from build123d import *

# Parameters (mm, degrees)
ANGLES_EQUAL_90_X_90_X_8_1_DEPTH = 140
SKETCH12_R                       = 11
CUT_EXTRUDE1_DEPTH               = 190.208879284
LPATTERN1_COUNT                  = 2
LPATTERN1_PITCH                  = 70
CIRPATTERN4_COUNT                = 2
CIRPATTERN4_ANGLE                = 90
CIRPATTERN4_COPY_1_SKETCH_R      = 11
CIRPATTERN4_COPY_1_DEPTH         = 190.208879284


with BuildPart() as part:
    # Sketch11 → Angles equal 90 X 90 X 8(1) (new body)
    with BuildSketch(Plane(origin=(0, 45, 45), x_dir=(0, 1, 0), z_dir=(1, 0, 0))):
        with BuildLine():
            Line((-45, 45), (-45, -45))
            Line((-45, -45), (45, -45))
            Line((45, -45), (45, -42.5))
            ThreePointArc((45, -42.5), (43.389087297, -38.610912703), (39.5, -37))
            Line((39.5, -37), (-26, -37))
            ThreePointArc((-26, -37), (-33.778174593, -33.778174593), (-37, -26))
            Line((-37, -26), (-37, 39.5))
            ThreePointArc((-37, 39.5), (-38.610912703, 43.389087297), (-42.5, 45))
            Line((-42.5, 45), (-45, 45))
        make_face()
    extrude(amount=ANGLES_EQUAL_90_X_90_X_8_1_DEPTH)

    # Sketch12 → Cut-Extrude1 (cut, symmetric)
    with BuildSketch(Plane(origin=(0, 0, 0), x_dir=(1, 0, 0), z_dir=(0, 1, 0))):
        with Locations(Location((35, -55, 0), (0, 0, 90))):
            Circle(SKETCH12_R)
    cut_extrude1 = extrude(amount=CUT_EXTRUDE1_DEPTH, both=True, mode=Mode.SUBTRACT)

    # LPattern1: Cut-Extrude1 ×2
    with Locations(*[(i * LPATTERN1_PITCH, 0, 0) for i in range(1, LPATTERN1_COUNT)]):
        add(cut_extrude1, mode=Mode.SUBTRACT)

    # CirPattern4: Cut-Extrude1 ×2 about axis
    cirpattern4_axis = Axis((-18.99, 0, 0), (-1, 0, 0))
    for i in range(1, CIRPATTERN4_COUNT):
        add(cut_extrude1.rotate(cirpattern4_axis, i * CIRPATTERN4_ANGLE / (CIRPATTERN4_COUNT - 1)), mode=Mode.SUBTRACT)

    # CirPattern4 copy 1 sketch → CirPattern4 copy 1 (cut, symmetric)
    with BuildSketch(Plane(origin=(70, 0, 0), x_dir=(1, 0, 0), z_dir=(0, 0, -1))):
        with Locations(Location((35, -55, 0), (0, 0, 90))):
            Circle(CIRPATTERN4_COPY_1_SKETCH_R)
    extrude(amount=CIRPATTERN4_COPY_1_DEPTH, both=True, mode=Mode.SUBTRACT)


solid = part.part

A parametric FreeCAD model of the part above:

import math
import FreeCAD as App
import Part
import Sketcher

V = App.Vector

doc = App.newDocument("Part")
body = doc.addObject("PartDesign::Body", "Body")

# Sketch on YZ plane
sketch1 = doc.addObject("Sketcher::SketchObject", "Sketch")
body.addObject(sketch1)
sketch1.AttachmentSupport = (doc.YZ_Plane, [""])
sketch1.MapMode = "FlatFace"
sketch1.addGeometry(Part.LineSegment(V(0, 90, 0), V(0, 0, 0)), False)
sketch1.addGeometry(Part.LineSegment(V(0, 0, 0), V(90, 0, 0)), False)
sketch1.addGeometry(Part.LineSegment(V(90, 0, 0), V(90, 2.5, 0)), False)
sketch1.addGeometry(Part.ArcOfCircle(Part.Circle(V(84.5, 2.5, 0), V(0, 0, 1), 5.5), math.radians(0), math.radians(90)), False)
sketch1.addGeometry(Part.LineSegment(V(84.5, 8, 0), V(19, 8, 0)), False)
sketch1.addGeometry(Part.ArcOfCircle(Part.Circle(V(19, 19, 0), V(0, 0, 1), 11), math.radians(180), math.radians(270)), False)
sketch1.addGeometry(Part.LineSegment(V(8, 19, 0), V(8, 84.5, 0)), False)
sketch1.addGeometry(Part.ArcOfCircle(Part.Circle(V(2.5, 84.5, 0), V(0, 0, 1), 5.5), math.radians(0), math.radians(90)), False)
sketch1.addGeometry(Part.LineSegment(V(2.5, 90, 0), V(0, 90, 0)), False)
sketch1.addConstraint(Sketcher.Constraint("Coincident", 0, 2, 1, 1))
sketch1.addConstraint(Sketcher.Constraint("Coincident", 1, 2, 2, 1))
sketch1.addConstraint(Sketcher.Constraint("Tangent", 2, 2, 3, 1))
sketch1.addConstraint(Sketcher.Constraint("Tangent", 3, 2, 4, 1))
sketch1.addConstraint(Sketcher.Constraint("Tangent", 4, 2, 5, 2))
sketch1.addConstraint(Sketcher.Constraint("Tangent", 5, 1, 6, 1))
sketch1.addConstraint(Sketcher.Constraint("Tangent", 6, 2, 7, 1))
sketch1.addConstraint(Sketcher.Constraint("Tangent", 7, 2, 8, 1))
sketch1.addConstraint(Sketcher.Constraint("Coincident", 8, 2, 0, 1))
sketch1.addConstraint(Sketcher.Constraint("Vertical", 0))
sketch1.addConstraint(Sketcher.Constraint("Horizontal", 1))
sketch1.addConstraint(Sketcher.Constraint("Vertical", 2))
sketch1.addConstraint(Sketcher.Constraint("Horizontal", 4))
sketch1.addConstraint(Sketcher.Constraint("Vertical", 6))
sketch1.addConstraint(Sketcher.Constraint("Horizontal", 8))
sketch1.addConstraint(Sketcher.Constraint("Coincident", 0, 2, -1, 1))
sketch1.addConstraint(Sketcher.Constraint("Equal", 3, 7))
sketch1.addConstraint(Sketcher.Constraint("Equal", 1, 0))
sketch1.addConstraint(Sketcher.Constraint("Equal", 8, 2))
sketch1.addConstraint(Sketcher.Constraint("Radius", 5, 11.0))
sketch1.addConstraint(Sketcher.Constraint("Radius", 3, 5.5))
sketch1.addConstraint(Sketcher.Constraint("DistanceX", 1, 1, 1, 2, 90.0))
sketch1.addConstraint(Sketcher.Constraint("DistanceX", 4, 2, 4, 1, 65.5))
pad1 = doc.addObject("PartDesign::Pad", "Pad")
body.addObject(pad1)
pad1.Profile = sketch1
pad1.Length = 140

# Sketch on XZ plane
sketch2 = doc.addObject("Sketcher::SketchObject", "Sketch001")
body.addObject(sketch2)
sketch2.AttachmentSupport = (doc.XZ_Plane, [""])
sketch2.MapMode = "FlatFace"
sketch2.addGeometry(Part.Circle(V(35, 55, 0), V(0, 0, 1), 11), False)
sketch2.addConstraint(Sketcher.Constraint("Diameter", 0, 22.0))
sketch2.addConstraint(Sketcher.Constraint("DistanceX", -1, 1, 0, 3, 35.0))
sketch2.addConstraint(Sketcher.Constraint("DistanceY", -1, 1, 0, 3, 55.0))
pocket1 = doc.addObject("PartDesign::Pocket", "Pocket")
body.addObject(pocket1)
pocket1.Profile = sketch2
pocket1.Length = 380.417759
pocket1.Midplane = True
doc.recompute()

linearpattern = doc.addObject("PartDesign::LinearPattern", "LinearPattern")
body.addObject(linearpattern)
linearpattern.Originals = [pocket1]
linearpattern.Direction = (doc.X_Axis, [""])
linearpattern.Mode = "offset"
linearpattern.Offset = 70
linearpattern.Occurrences = 2
body.Tip = linearpattern
doc.recompute()

polarpattern = doc.addObject("PartDesign::PolarPattern", "PolarPattern")
body.addObject(polarpattern)
polarpattern.Originals = [pocket1]
polarpattern.Axis = (doc.X_Axis, [""])
polarpattern.Angle = 90
polarpattern.Occurrences = 2
polarpattern.Reversed = True
body.Tip = polarpattern

# Sketch on XY plane
sketch3 = doc.addObject("Sketcher::SketchObject", "Sketch002")
body.addObject(sketch3)
sketch3.AttachmentSupport = (doc.XY_Plane, [""])
sketch3.MapMode = "FlatFace"
sketch3.addGeometry(Part.Circle(V(105, 55, 0), V(0, 0, 1), 11), False)
sketch3.addConstraint(Sketcher.Constraint("Diameter", 0, 22.0))
sketch3.addConstraint(Sketcher.Constraint("DistanceX", -1, 1, 0, 3, 105.0))
sketch3.addConstraint(Sketcher.Constraint("DistanceY", -1, 1, 0, 3, 55.0))
pocket2 = doc.addObject("PartDesign::Pocket", "Pocket001")
body.addObject(pocket2)
pocket2.Profile = sketch3
pocket2.Length = 380.417759
pocket2.Midplane = True

doc.recompute()
